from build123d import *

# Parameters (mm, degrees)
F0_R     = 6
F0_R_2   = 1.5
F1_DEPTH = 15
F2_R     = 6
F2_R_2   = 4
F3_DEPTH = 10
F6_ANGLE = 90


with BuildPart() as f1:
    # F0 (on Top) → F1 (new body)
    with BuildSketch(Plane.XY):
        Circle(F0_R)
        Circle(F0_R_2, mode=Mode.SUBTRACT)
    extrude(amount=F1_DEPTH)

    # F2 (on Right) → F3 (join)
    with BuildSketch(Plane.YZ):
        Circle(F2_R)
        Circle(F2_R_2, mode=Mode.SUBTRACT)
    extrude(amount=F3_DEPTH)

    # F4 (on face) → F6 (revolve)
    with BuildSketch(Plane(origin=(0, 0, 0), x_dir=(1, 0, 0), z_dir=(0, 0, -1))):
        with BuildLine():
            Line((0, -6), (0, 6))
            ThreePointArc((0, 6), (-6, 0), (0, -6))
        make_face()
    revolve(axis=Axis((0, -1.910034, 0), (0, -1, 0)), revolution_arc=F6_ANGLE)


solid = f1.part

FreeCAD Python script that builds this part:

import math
import FreeCAD as App
import Part
import Sketcher
from FreeCAD import Vector

doc = App.newDocument("Part")
body = doc.addObject("PartDesign::Body", "Body")

sketch1 = body.newObject("Sketcher::SketchObject", "Sketch")
sketch1.AttachmentSupport = (doc.getObject("XY_Plane"), [""])
sketch1.MapMode = "FlatFace"
sketch1.addGeometry([
    Part.Circle(Vector(0, 0, 0), Vector(0, 0, 1), 6),
    Part.Circle(Vector(0, 0, 0), Vector(0, 0, 1), 1.5),
], False)
sketch1.addConstraint([
    Sketcher.Constraint("Coincident", 0, 3, -1, 1),
    Sketcher.Constraint("Coincident", 1, 3, -1, 1),
    Sketcher.Constraint("Diameter", 0, 12.0),
    Sketcher.Constraint("Diameter", 1, 3.0),
])
pad1 = body.newObject("PartDesign::Pad", "Pad")
pad1.Profile = sketch1
pad1.Length = 15

sketch2 = body.newObject("Sketcher::SketchObject", "Sketch001")
sketch2.AttachmentSupport = (doc.getObject("YZ_Plane"), [""])
sketch2.MapMode = "FlatFace"
sketch2.addGeometry([
    Part.Circle(Vector(0, 0, 0), Vector(0, 0, 1), 6),
    Part.Circle(Vector(0, 0, 0), Vector(0, 0, 1), 4),
], False)
sketch2.addConstraint([
    Sketcher.Constraint("Coincident", 0, 3, -1, 1),
    Sketcher.Constraint("Coincident", 1, 3, -1, 1),
    Sketcher.Constraint("Diameter", 0, 12.0),
    Sketcher.Constraint("Diameter", 1, 8.0),
])
pad2 = body.newObject("PartDesign::Pad", "Pad001")
pad2.Profile = sketch2
pad2.Length = 10

sketch3 = body.newObject("Sketcher::SketchObject", "Sketch002")
sketch3.AttachmentSupport = (doc.getObject("XY_Plane"), [""])
sketch3.MapMode = "FlatFace"
sketch3.addGeometry([
    Part.LineSegment(Vector(0, 6, 0), Vector(0, -6, 0)),
    Part.ArcOfCircle(Part.Circle(Vector(0, 0, 0), Vector(0, 0, 1), 6), math.radians(90), math.radians(270)),
], False)
sketch3.addConstraint([
    Sketcher.Constraint("Coincident", 0, 1, 1, 1),
    Sketcher.Constraint("Coincident", 1, 2, 0, 2),
    Sketcher.Constraint("Vertical", 0),
    Sketcher.Constraint("Coincident", 1, 3, -1, 1),
    Sketcher.Constraint("PointOnObject", 0, 1, -2),
    Sketcher.Constraint("Radius", 1, 6.0),
])
revolution = body.newObject("PartDesign::Revolution", "Revolution")
revolution.Profile = sketch3
revolution.ReferenceAxis = (sketch3, ["V_Axis"])
revolution.Angle = 90
revolution.Reversed = True

doc.recompute()
